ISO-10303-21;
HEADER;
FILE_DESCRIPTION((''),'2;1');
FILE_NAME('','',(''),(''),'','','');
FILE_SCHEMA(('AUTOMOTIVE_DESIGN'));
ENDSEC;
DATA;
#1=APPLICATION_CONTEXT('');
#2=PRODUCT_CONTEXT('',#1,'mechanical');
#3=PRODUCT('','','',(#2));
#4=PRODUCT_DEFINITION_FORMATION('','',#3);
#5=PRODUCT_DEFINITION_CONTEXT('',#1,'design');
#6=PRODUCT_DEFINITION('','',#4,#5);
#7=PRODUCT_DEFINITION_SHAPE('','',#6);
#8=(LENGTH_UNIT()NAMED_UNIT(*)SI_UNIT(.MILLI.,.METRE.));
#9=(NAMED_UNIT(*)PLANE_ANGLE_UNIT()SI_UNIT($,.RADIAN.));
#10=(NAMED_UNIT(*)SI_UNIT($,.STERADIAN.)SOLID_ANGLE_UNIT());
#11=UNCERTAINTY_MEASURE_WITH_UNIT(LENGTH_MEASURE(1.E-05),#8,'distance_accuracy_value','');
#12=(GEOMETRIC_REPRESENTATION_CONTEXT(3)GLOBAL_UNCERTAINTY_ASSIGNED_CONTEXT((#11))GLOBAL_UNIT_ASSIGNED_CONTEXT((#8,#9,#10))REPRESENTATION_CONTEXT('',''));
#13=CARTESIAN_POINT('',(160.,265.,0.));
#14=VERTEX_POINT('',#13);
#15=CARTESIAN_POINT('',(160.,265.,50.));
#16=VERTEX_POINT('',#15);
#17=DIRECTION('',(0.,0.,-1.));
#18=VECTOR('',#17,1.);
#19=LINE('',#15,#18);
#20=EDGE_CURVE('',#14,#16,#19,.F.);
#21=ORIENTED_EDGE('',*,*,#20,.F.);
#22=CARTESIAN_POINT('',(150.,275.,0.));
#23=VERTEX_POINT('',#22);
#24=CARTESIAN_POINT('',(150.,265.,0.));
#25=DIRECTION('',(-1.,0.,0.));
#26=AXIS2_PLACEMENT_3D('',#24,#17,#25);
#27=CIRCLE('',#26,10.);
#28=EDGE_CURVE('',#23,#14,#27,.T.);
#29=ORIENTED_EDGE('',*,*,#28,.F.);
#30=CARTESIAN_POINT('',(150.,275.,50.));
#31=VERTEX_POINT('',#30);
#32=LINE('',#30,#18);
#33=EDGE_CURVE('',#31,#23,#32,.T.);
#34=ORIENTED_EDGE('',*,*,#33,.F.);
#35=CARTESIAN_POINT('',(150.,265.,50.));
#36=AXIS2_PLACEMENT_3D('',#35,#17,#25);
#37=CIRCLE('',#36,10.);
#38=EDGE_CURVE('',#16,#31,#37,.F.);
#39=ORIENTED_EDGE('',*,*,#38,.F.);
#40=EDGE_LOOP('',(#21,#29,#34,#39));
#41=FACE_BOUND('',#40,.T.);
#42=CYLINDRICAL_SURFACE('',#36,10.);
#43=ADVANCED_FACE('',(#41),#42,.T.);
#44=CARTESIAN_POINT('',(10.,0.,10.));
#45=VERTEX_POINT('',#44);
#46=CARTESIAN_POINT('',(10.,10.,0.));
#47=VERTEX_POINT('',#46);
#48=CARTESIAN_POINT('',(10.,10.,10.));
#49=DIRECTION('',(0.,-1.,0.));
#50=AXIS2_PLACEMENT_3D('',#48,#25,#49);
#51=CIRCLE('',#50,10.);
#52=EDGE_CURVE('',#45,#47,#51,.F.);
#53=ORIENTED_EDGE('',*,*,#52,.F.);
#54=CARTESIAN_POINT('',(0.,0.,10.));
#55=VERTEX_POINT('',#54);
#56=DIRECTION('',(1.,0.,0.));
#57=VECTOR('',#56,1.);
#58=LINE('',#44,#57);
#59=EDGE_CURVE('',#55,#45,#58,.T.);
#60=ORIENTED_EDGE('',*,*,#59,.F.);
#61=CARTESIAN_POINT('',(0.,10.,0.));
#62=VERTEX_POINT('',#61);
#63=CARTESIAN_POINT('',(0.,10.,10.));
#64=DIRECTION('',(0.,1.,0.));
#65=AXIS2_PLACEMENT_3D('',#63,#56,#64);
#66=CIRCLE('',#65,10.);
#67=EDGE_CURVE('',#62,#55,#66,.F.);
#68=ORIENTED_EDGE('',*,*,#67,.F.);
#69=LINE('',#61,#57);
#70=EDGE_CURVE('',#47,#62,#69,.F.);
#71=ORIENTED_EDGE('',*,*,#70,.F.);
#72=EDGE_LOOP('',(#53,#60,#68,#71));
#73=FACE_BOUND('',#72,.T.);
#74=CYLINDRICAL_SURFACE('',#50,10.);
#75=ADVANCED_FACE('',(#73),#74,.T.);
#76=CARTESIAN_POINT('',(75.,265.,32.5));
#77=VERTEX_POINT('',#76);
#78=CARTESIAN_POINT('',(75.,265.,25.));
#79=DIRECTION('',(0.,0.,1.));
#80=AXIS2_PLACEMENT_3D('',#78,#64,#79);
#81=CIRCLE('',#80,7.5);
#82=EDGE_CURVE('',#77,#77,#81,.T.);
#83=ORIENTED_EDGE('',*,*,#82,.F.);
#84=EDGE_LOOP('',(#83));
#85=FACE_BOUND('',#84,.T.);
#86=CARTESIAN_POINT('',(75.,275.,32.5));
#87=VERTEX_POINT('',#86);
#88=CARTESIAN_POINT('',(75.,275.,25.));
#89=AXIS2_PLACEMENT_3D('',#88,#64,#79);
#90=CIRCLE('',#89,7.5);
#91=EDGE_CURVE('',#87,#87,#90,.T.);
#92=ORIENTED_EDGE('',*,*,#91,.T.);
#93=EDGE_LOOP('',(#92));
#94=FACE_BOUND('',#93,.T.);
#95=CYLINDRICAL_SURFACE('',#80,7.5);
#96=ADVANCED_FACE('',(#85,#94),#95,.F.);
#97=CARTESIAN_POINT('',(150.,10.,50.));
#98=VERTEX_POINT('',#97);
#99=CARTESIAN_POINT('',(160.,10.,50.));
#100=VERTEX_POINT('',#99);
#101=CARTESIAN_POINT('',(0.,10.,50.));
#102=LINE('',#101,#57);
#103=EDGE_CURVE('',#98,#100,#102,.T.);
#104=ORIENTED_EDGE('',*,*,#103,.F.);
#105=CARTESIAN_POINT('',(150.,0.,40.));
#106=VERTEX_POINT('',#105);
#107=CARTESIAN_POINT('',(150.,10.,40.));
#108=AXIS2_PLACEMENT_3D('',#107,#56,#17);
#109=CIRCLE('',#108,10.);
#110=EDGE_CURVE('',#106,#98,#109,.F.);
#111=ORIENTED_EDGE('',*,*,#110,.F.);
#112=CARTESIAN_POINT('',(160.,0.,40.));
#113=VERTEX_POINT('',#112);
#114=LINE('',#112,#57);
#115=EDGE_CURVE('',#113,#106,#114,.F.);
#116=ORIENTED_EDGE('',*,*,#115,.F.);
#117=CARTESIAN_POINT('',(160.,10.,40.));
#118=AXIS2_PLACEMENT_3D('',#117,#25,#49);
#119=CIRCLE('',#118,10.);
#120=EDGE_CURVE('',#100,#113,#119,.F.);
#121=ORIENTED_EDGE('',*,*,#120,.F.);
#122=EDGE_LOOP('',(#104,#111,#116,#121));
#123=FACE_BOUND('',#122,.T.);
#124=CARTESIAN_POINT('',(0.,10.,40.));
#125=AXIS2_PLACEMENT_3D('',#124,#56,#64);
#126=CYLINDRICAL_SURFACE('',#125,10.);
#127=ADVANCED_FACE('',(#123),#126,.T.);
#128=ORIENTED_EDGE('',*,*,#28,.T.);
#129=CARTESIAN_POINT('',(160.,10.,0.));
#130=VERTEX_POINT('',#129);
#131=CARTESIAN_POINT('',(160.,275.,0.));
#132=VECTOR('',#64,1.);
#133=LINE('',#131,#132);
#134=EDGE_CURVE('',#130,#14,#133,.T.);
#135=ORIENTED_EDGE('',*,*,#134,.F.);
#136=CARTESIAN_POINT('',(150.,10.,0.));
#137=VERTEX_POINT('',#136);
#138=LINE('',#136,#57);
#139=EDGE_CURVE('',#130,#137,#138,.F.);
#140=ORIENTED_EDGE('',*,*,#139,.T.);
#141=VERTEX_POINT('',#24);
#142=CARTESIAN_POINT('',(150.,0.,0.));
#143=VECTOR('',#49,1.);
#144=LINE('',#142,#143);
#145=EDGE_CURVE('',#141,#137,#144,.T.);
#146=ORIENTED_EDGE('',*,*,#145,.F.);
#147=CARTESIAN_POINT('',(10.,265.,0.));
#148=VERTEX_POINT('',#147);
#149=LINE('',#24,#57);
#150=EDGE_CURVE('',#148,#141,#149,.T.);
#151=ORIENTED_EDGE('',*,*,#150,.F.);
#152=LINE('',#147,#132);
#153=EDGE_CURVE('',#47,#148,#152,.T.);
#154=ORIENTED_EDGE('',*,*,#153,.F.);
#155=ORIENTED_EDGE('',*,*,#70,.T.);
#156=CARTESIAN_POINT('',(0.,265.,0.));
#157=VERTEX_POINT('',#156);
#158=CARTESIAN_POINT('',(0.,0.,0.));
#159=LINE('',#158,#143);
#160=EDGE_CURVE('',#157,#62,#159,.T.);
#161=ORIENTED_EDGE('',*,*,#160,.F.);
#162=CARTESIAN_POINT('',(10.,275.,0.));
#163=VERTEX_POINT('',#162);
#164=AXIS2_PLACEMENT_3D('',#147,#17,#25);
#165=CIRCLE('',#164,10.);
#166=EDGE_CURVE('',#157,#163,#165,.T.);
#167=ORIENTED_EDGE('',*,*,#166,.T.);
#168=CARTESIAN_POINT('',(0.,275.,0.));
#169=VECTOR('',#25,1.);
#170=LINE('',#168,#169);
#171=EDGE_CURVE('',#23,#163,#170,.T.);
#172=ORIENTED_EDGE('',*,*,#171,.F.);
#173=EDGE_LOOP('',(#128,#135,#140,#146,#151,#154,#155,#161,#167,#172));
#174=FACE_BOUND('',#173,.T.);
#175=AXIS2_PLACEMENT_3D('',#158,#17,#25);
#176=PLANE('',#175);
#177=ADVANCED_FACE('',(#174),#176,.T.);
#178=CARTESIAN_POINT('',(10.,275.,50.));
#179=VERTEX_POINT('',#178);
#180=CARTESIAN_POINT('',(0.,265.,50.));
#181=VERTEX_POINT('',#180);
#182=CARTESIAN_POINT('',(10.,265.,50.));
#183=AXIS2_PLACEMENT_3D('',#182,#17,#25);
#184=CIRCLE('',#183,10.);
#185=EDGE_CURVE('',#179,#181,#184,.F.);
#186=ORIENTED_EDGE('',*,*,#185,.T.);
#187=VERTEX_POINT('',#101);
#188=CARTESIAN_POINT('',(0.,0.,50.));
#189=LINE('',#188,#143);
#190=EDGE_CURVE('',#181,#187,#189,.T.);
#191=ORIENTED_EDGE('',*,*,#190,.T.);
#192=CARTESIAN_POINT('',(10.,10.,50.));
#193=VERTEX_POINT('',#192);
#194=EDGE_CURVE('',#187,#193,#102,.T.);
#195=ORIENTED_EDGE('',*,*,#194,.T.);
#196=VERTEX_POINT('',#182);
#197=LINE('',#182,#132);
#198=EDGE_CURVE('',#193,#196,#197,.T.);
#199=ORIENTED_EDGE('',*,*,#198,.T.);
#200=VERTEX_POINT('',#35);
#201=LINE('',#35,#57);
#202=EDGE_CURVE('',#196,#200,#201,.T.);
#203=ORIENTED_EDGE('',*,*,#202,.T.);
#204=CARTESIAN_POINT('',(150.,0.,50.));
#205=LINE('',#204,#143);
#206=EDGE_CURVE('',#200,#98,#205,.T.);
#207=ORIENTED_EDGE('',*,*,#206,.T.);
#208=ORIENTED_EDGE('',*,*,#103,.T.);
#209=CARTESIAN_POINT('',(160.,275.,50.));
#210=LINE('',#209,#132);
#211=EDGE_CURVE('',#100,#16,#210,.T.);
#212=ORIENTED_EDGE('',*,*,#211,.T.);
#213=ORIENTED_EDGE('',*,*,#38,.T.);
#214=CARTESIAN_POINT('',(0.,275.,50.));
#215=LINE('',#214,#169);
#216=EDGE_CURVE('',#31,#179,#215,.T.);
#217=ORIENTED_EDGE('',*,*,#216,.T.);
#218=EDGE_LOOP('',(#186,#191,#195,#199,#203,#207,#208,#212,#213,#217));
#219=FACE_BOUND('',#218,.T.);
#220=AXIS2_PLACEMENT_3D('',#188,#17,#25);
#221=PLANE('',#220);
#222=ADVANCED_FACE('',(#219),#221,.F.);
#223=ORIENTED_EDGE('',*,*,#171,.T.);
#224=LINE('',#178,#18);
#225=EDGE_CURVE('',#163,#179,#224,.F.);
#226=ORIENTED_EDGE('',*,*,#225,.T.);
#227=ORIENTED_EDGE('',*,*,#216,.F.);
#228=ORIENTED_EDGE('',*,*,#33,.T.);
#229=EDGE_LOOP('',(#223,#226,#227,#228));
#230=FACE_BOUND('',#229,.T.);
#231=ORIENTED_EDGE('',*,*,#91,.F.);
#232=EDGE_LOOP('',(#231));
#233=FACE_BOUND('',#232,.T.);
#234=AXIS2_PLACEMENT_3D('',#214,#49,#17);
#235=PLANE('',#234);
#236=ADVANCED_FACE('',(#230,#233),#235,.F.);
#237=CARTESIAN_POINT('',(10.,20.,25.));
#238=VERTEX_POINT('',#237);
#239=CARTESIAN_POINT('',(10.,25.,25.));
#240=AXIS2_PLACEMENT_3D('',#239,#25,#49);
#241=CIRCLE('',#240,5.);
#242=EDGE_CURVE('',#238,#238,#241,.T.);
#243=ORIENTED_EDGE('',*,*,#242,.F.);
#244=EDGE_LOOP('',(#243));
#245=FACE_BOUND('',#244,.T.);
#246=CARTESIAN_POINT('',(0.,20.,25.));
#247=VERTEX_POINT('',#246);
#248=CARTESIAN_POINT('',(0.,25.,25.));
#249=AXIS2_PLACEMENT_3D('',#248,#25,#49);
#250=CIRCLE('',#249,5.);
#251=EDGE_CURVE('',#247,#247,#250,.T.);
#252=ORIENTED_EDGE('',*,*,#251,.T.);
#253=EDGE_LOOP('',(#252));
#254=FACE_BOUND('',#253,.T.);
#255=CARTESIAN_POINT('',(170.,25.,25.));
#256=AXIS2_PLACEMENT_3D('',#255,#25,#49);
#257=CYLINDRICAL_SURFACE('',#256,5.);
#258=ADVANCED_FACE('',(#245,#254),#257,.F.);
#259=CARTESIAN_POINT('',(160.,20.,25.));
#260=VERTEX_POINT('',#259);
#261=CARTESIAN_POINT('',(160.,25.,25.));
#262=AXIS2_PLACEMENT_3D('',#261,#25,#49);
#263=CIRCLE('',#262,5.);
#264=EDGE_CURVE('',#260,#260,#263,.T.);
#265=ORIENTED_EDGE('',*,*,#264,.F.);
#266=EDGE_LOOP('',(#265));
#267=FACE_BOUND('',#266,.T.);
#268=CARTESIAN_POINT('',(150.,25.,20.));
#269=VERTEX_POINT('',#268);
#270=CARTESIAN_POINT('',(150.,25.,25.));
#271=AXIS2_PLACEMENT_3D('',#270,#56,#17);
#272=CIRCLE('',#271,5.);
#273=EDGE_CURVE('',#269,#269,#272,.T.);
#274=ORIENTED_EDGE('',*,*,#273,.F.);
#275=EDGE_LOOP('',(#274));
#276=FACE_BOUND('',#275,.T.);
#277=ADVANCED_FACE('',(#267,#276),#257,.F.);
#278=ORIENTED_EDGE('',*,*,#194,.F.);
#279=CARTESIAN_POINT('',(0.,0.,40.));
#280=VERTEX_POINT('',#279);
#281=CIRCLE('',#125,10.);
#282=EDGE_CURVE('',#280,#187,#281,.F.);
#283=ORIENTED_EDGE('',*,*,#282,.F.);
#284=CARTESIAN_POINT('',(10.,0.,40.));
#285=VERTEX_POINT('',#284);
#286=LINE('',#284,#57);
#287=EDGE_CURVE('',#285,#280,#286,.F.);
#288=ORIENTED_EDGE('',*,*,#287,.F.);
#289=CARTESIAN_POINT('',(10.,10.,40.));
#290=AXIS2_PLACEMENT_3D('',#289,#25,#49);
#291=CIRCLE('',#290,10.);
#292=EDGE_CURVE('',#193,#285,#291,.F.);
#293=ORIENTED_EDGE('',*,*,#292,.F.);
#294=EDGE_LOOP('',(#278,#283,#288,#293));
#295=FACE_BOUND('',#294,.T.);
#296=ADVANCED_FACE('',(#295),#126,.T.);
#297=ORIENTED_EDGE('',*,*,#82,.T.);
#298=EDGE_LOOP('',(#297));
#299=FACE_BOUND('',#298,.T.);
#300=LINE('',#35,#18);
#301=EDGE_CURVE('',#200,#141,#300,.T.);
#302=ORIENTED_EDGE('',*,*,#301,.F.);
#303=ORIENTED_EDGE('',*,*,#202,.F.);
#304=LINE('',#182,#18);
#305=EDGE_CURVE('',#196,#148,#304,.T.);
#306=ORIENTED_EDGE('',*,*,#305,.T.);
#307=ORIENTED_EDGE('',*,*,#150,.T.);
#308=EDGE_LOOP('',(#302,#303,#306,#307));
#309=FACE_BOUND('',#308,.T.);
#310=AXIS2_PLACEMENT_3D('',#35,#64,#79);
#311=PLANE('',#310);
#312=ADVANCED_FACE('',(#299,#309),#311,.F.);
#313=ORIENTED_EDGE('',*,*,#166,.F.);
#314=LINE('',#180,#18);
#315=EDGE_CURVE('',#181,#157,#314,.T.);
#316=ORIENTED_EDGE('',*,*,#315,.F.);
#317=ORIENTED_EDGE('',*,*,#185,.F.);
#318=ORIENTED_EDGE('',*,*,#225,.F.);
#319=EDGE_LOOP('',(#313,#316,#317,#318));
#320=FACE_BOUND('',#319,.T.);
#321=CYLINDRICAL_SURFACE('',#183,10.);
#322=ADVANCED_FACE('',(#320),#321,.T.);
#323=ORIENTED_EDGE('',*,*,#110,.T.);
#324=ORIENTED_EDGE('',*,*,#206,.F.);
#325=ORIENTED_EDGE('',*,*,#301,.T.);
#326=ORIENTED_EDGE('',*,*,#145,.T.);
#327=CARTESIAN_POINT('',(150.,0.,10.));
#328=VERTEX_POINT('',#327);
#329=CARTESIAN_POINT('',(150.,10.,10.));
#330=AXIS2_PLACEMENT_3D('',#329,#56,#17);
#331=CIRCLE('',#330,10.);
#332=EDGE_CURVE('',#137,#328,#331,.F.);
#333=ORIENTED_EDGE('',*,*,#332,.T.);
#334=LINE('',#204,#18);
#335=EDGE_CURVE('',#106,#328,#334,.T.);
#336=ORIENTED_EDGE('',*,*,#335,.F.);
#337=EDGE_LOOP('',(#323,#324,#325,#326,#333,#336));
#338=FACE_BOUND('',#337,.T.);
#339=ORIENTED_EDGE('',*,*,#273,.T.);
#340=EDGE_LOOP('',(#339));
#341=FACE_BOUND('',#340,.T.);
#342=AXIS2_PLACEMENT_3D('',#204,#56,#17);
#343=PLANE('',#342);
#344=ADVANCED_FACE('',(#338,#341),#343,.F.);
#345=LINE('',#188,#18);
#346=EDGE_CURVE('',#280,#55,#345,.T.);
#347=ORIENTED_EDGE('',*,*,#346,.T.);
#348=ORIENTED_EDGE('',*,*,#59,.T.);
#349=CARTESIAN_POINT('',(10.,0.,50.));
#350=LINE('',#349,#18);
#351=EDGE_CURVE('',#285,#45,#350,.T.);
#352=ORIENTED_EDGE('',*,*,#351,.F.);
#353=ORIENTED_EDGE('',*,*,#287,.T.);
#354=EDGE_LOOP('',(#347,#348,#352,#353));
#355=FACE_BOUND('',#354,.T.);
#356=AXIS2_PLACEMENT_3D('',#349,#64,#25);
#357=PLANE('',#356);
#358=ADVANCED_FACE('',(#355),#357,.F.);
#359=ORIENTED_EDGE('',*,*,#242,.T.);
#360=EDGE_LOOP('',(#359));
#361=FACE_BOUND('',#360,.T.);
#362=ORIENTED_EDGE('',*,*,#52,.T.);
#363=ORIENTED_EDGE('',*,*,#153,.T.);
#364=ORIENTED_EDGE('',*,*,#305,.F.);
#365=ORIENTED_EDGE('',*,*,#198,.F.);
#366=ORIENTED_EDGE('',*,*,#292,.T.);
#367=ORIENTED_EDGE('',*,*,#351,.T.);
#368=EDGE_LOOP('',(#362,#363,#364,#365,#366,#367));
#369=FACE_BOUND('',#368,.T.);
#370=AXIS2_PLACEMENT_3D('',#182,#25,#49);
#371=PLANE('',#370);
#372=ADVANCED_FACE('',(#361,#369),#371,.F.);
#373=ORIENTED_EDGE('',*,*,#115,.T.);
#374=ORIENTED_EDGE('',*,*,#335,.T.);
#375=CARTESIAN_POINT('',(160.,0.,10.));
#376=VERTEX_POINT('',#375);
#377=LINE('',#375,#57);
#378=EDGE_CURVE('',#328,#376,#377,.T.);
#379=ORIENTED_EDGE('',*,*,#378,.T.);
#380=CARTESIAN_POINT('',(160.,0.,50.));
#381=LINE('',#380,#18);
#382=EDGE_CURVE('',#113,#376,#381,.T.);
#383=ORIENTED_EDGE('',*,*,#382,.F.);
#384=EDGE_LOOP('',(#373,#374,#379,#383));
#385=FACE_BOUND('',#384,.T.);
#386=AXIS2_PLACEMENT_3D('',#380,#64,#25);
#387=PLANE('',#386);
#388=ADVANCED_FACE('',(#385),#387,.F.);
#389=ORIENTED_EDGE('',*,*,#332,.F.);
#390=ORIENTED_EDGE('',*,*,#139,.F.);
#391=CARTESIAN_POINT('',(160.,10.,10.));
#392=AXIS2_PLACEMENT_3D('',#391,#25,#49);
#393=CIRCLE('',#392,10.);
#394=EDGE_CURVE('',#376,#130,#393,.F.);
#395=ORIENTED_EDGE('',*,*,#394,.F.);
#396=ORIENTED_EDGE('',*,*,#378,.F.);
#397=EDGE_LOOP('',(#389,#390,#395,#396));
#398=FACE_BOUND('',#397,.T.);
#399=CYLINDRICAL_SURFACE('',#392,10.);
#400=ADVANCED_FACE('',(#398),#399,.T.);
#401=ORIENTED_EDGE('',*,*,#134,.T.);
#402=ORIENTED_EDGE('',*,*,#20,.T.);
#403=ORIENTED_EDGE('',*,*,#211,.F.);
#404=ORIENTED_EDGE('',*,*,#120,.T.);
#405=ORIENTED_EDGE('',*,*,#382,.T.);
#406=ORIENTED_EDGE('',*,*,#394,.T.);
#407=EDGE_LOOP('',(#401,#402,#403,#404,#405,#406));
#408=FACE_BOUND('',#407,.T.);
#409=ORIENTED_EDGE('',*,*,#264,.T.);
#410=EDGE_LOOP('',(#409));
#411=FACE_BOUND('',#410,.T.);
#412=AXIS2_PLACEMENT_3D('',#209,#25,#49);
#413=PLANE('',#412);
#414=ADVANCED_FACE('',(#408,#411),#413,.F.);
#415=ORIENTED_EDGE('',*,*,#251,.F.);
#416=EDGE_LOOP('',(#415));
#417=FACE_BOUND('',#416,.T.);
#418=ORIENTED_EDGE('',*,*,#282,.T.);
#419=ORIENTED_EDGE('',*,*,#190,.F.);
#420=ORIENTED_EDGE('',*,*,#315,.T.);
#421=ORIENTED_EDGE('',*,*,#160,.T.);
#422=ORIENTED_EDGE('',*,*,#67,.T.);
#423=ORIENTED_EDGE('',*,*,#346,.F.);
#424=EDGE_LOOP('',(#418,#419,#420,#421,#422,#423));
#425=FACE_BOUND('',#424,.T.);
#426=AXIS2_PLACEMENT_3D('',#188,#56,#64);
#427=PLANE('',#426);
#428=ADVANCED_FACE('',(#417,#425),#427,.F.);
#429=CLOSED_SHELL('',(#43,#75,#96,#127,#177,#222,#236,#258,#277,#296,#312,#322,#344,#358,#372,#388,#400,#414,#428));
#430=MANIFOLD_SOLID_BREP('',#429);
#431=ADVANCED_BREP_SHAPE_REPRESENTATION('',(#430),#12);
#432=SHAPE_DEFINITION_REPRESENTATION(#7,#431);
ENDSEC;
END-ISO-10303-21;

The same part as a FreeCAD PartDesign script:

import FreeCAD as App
import Part
import Sketcher
from FreeCAD import Vector


def edges_at(feature, points):
    """Names of the edges that pass closest to the given points."""
    edges = feature.Shape.Edges
    near = lambda p: min(range(len(edges)), key=lambda i: edges[i].distToShape(Part.Vertex(*p))[0])
    return sorted({f"Edge{near(p) + 1}" for p in points})

doc = App.newDocument("Part")
body = doc.addObject("PartDesign::Body", "Body")

sketch1 = body.newObject("Sketcher::SketchObject", "Sketch")
sketch1.AttachmentSupport = (doc.getObject("XY_Plane"), [""])
sketch1.MapMode = "FlatFace"
sketch1.addGeometry([
    Part.LineSegment(Vector(0, 275, 0), Vector(0, 0, 0)),
    Part.LineSegment(Vector(0, 0, 0), Vector(10, 0, 0)),
    Part.LineSegment(Vector(10, 0, 0), Vector(10, 265, 0)),
    Part.LineSegment(Vector(10, 265, 0), Vector(150, 265, 0)),
    Part.LineSegment(Vector(150, 265, 0), Vector(150, 0, 0)),
    Part.LineSegment(Vector(150, 0, 0), Vector(160, 0, 0)),
    Part.LineSegment(Vector(160, 0, 0), Vector(160, 275, 0)),
    Part.LineSegment(Vector(160, 275, 0), Vector(0, 275, 0)),
], False)
sketch1.addConstraint([
    Sketcher.Constraint("Coincident", 0, 2, 1, 1),
    Sketcher.Constraint("Coincident", 1, 2, 2, 1),
    Sketcher.Constraint("Coincident", 2, 2, 3, 1),
    Sketcher.Constraint("Coincident", 3, 2, 4, 1),
    Sketcher.Constraint("Coincident", 4, 2, 5, 1),
    Sketcher.Constraint("Coincident", 5, 2, 6, 1),
    Sketcher.Constraint("Coincident", 6, 2, 7, 1),
    Sketcher.Constraint("Coincident", 7, 2, 0, 1),
    Sketcher.Constraint("Vertical", 0),
    Sketcher.Constraint("Horizontal", 1),
    Sketcher.Constraint("Vertical", 2),
    Sketcher.Constraint("Horizontal", 3),
    Sketcher.Constraint("Vertical", 4),
    Sketcher.Constraint("Horizontal", 5),
    Sketcher.Constraint("Vertical", 6),
    Sketcher.Constraint("Horizontal", 7),
    Sketcher.Constraint("Coincident", 0, 2, -1, 1),
    Sketcher.Constraint("PointOnObject", 4, 2, -1),
    Sketcher.Constraint("Equal", 1, 5),
    Sketcher.Constraint("DistanceX", 1, 1, 1, 2, 10.0),
    Sketcher.Constraint("DistanceX", 3, 1, 3, 2, 140.0),
    Sketcher.Constraint("DistanceY", 0, 2, 0, 1, 275.0),
    Sketcher.Constraint("DistanceY", 2, 1, 2, 2, 265.0),
])
pad1 = body.newObject("PartDesign::Pad", "Pad")
pad1.Profile = sketch1
pad1.Length = 50
doc.recompute()

fillet = body.newObject("PartDesign::Fillet", "Fillet")
fillet.Base = (pad1, edges_at(pad1, [
    (5, 0, 0),
    (0, 275, 25),
    (160, 275, 25),
    (155, 0, 50),
    (5, 0, 50),
    (155, 0, 0),
]))
fillet.Radius = 10

sketch2 = body.newObject("Sketcher::SketchObject", "Sketch001")
sketch2.AttachmentSupport = (doc.getObject("YZ_Plane"), [""])
sketch2.MapMode = "FlatFace"
sketch2.addGeometry(Part.Circle(Vector(25, 25, 0), Vector(0, 0, 1), 5), False)
sketch2.addConstraint([
    Sketcher.Constraint("Diameter", 0, 10.0),
    Sketcher.Constraint("DistanceX", -1, 1, 0, 3, 25.0),
    Sketcher.Constraint("DistanceY", -1, 1, 0, 3, 25.0),
])
pocket1 = body.newObject("PartDesign::Pocket", "Pocket")
pocket1.Profile = sketch2
pocket1.Length = 170
pocket1.Reversed = True

sketch3 = body.newObject("Sketcher::SketchObject", "Sketch002")
sketch3.AttachmentSupport = (doc.getObject("XZ_Plane"), [""])
sketch3.MapMode = "FlatFace"
sketch3.AttachmentOffset = App.Placement(Vector(0, 0, -275), App.Rotation())
sketch3.addGeometry(Part.Circle(Vector(75, 25, 0), Vector(0, 0, 1), 7.5), False)
sketch3.addConstraint([
    Sketcher.Constraint("Diameter", 0, 15.0),
    Sketcher.Constraint("DistanceX", -1, 1, 0, 3, 75.0),
    Sketcher.Constraint("DistanceY", -1, 1, 0, 3, 25.0),
])
pocket2 = body.newObject("PartDesign::Pocket", "Pocket001")
pocket2.Profile = sketch3
pocket2.Length = 10
pocket2.Reversed = True

doc.recompute()
